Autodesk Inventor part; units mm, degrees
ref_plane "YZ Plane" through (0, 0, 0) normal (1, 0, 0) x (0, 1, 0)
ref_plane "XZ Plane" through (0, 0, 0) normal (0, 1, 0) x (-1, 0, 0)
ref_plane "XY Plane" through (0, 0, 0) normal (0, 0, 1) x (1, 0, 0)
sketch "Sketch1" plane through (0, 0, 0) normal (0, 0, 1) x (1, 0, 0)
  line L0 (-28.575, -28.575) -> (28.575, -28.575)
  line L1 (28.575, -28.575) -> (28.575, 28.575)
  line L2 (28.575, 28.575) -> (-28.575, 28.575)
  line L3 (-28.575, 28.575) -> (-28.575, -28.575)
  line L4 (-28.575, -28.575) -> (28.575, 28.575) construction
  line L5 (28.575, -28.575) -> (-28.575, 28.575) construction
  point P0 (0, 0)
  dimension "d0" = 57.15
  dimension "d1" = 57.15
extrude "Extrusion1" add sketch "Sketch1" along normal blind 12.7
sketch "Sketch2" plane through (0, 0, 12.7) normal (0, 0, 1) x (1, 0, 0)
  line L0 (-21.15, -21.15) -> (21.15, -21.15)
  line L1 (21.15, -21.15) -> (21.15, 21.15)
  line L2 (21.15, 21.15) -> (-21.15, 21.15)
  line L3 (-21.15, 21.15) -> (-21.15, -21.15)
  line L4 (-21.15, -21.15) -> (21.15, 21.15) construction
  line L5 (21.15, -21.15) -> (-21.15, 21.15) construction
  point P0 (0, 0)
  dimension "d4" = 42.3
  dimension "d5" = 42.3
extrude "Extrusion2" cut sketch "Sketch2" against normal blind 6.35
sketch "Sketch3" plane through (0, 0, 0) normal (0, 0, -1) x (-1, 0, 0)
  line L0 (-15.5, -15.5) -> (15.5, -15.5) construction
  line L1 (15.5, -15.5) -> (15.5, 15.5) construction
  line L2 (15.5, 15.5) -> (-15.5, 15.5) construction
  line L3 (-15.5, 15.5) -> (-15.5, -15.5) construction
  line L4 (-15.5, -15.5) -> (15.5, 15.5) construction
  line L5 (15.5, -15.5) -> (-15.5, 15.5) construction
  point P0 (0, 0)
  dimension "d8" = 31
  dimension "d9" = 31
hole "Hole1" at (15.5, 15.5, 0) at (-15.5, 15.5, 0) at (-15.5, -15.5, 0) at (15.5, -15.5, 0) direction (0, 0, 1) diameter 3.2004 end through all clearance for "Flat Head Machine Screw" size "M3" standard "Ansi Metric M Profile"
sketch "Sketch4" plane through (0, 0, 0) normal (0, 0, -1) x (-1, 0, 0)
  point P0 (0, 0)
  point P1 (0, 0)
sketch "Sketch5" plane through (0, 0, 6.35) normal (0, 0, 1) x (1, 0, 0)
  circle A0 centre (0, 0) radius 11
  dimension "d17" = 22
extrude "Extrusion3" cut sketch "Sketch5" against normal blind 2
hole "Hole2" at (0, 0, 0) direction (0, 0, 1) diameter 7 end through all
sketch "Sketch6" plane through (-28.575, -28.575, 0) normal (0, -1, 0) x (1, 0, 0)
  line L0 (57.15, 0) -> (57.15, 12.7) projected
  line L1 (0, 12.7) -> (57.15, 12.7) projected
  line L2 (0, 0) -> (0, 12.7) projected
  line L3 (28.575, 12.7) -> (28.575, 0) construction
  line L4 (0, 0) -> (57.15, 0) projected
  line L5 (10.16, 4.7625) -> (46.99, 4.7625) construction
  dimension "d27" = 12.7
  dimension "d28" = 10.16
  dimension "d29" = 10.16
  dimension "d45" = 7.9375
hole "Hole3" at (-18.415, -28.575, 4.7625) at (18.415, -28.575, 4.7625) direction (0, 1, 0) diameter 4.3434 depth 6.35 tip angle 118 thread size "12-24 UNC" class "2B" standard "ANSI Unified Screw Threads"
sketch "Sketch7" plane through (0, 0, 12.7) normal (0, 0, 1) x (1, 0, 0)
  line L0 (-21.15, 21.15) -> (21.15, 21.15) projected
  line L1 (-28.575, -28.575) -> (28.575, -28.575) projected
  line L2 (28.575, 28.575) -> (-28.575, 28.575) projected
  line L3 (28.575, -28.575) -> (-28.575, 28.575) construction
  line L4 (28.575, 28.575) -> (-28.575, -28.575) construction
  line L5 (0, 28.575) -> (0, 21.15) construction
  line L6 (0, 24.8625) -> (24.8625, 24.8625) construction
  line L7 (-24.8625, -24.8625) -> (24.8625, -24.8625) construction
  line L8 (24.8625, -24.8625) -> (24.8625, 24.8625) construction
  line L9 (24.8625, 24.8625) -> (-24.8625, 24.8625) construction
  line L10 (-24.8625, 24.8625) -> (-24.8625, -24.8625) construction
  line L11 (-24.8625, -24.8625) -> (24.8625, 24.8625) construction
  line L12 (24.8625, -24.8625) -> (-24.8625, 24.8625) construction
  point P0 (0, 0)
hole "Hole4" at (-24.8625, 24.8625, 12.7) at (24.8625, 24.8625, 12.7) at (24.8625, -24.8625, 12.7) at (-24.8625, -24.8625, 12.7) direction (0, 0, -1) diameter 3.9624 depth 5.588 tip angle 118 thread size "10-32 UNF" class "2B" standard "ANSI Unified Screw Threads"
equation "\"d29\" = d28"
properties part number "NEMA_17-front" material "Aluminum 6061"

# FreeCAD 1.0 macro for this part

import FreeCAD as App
import Part
import Sketcher

V = App.Vector
Q = App.Units.Quantity


def add_polygon(sketch, points):
    """Adds a closed chain of lines whose ends are joined by coincident constraints."""
    first, n = sketch.GeometryCount, len(points)
    for a, b in zip(points, points[1:] + points[:1]):
        sketch.addGeometry(Part.LineSegment(App.Vector(*a, 0), App.Vector(*b, 0)), False)
    for i in range(n):
        sketch.addConstraint(Sketcher.Constraint("Coincident", first + i, 2, first + (i + 1) % n, 1))

doc = App.newDocument("Part")
body = doc.addObject("PartDesign::Body", "Body")

sketch1 = doc.addObject("Sketcher::SketchObject", "Sketch")
body.addObject(sketch1)
sketch1.AttachmentSupport = (doc.XY_Plane, [""])
sketch1.MapMode = "FlatFace"
add_polygon(sketch1, [(-29, 29), (-29, -29), (29, -29), (29, 29)])
sketch1.addConstraint(Sketcher.Constraint("Vertical", 0))
sketch1.addConstraint(Sketcher.Constraint("Horizontal", 1))
sketch1.addConstraint(Sketcher.Constraint("Vertical", 2))
sketch1.addConstraint(Sketcher.Constraint("Horizontal", 3))
sketch1.addConstraint(Sketcher.Constraint("Symmetric", 0, 2, 2, 2, -1, 1))
sketch1.addConstraint(Sketcher.Constraint("Equal", 3, 0))
sketch1.addConstraint(Sketcher.Constraint("DistanceX", 1, 1, 1, 2, Q("2.25 in")))
pad1 = doc.addObject("PartDesign::Pad", "Pad")
body.addObject(pad1)
pad1.Profile = sketch1
pad1.Length = Q("0.5 in")

sketch2 = doc.addObject("Sketcher::SketchObject", "Sketch001")
body.addObject(sketch2)
sketch2.AttachmentSupport = (doc.XY_Plane, [""])
sketch2.MapMode = "FlatFace"
sketch2.AttachmentOffset = App.Placement(V(0, 0, 0.5 * 25.4), App.Rotation())
add_polygon(sketch2, [(-21, 21), (-21, -21), (21, -21), (21, 21)])
sketch2.addConstraint(Sketcher.Constraint("Vertical", 0))
sketch2.addConstraint(Sketcher.Constraint("Horizontal", 1))
sketch2.addConstraint(Sketcher.Constraint("Vertical", 2))
sketch2.addConstraint(Sketcher.Constraint("Horizontal", 3))
sketch2.addConstraint(Sketcher.Constraint("Symmetric", 0, 2, 2, 2, -1, 1))
sketch2.addConstraint(Sketcher.Constraint("Equal", 3, 0))
sketch2.addConstraint(Sketcher.Constraint("DistanceX", 1, 1, 1, 2, Q("42.3 mm")))
pocket1 = doc.addObject("PartDesign::Pocket", "Pocket")
body.addObject(pocket1)
pocket1.Profile = sketch2
pocket1.Length = Q("0.25 in")

sketch3 = doc.addObject("Sketcher::SketchObject", "Sketch002")
body.addObject(sketch3)
sketch3.AttachmentSupport = (doc.XY_Plane, [""])
sketch3.MapMode = "FlatFace"
sketch3.addGeometry(Part.Circle(V(15.5, 15.5, 0), V(0, 0, 1), 1.6), False)
sketch3.addGeometry(Part.Circle(V(-15.5, 15.5, 0), V(0, 0, 1), 1.6), False)
sketch3.addGeometry(Part.Circle(V(-15.5, -15.5, 0), V(0, 0, 1), 1.6), False)
sketch3.addGeometry(Part.Circle(V(15.5, -15.5, 0), V(0, 0, 1), 1.6), False)
sketch3.addConstraint(Sketcher.Constraint("Equal", 0, 1))
sketch3.addConstraint(Sketcher.Constraint("Equal", 1, 2))
sketch3.addConstraint(Sketcher.Constraint("Equal", 2, 3))
sketch3.addConstraint(Sketcher.Constraint("Symmetric", 0, 3, 2, 3, -1, 1))
sketch3.addConstraint(Sketcher.Constraint("Symmetric", 1, 3, 3, 3, -1, 1))
sketch3.addConstraint(Sketcher.Constraint("Symmetric", 0, 3, 1, 3, -2))
sketch3.addConstraint(Sketcher.Constraint("Diameter", 0, Q("0.126 in")))
sketch3.addConstraint(Sketcher.Constraint("DistanceX", -1, 1, 0, 3, Q("15.5 mm")))
sketch3.addConstraint(Sketcher.Constraint("DistanceY", -1, 1, 0, 3, Q("15.5 mm")))
doc.recompute()
hole = doc.addObject("PartDesign::Hole", "Hole")
body.addObject(hole)
hole.Profile = sketch3
hole.ThreadType = "None"
hole.Diameter = Q("0.126 in")
hole.DepthType = "ThroughAll"
hole.Reversed = True

sketch4 = doc.addObject("Sketcher::SketchObject", "Sketch003")
body.addObject(sketch4)
sketch4.AttachmentSupport = (doc.XY_Plane, [""])
sketch4.MapMode = "FlatFace"
sketch4.AttachmentOffset = App.Placement(V(0, 0, 0.25 * 25.4), App.Rotation())
sketch4.addGeometry(Part.Circle(V(0, 0, 0), V(0, 0, 1), 11), False)
sketch4.addConstraint(Sketcher.Constraint("Coincident", 0, 3, -1, 1))
sketch4.addConstraint(Sketcher.Constraint("Diameter", 0, Q("22 mm")))
pocket2 = doc.addObject("PartDesign::Pocket", "Pocket001")
body.addObject(pocket2)
pocket2.Profile = sketch4
pocket2.Length = 2

sketch5 = doc.addObject("Sketcher::SketchObject", "Sketch004")
body.addObject(sketch5)
sketch5.AttachmentSupport = (doc.XY_Plane, [""])
sketch5.MapMode = "FlatFace"
sketch5.addGeometry(Part.Circle(V(0, 0, 0), V(0, 0, 1), 3.5), False)
sketch5.addConstraint(Sketcher.Constraint("Coincident", 0, 3, -1, 1))
sketch5.addConstraint(Sketcher.Constraint("Diameter", 0, Q("0.2756 in")))
doc.recompute()
hole2 = doc.addObject("PartDesign::Hole", "Hole001")
body.addObject(hole2)
hole2.Profile = sketch5
hole2.ThreadType = "None"
hole2.Diameter = Q("0.2755906 in")
hole2.DepthType = "ThroughAll"
hole2.Reversed = True

sketch6 = doc.addObject("Sketcher::SketchObject", "Sketch005")
body.addObject(sketch6)
sketch6.AttachmentSupport = (doc.XZ_Plane, [""])
sketch6.MapMode = "FlatFace"
sketch6.AttachmentOffset = App.Placement(V(0, 0, 1.125 * 25.4), App.Rotation())
sketch6.addGeometry(Part.Circle(V(-18.4, 4.8, 0), V(0, 0, 1), 2.2), False)
sketch6.addGeometry(Part.Circle(V(18.4, 4.8, 0), V(0, 0, 1), 2.2), False)
sketch6.addConstraint(Sketcher.Constraint("Equal", 0, 1))
sketch6.addConstraint(Sketcher.Constraint("Symmetric", 0, 3, 1, 3, -2))
sketch6.addConstraint(Sketcher.Constraint("Diameter", 0, Q("0.171 in")))
sketch6.addConstraint(Sketcher.Constraint("DistanceX", 0, 3, 1, 3, Q("1.45 in")))
sketch6.addConstraint(Sketcher.Constraint("DistanceY", -1, 1, 0, 3, Q("0.1875 in")))
doc.recompute()
hole3 = doc.addObject("PartDesign::Hole", "Hole002")
body.addObject(hole3)
hole3.Profile = sketch6
hole3.ThreadType = "None"
hole3.Diameter = Q("0.171 in")
hole3.DepthType = "Dimension"
hole3.Depth = Q("0.25 in")
hole3.DrillPoint = "Angled"
hole3.DrillPointAngle = 118

sketch7 = doc.addObject("Sketcher::SketchObject", "Sketch006")
body.addObject(sketch7)
sketch7.AttachmentSupport = (doc.XY_Plane, [""])
sketch7.MapMode = "FlatFace"
sketch7.AttachmentOffset = App.Placement(V(0, 0, 0.5 * 25.4), App.Rotation())
sketch7.addGeometry(Part.Circle(V(-24.9, 24.9, 0), V(0, 0, 1), 2), False)
sketch7.addGeometry(Part.Circle(V(24.9, 24.9, 0), V(0, 0, 1), 2), False)
sketch7.addGeometry(Part.Circle(V(24.9, -24.9, 0), V(0, 0, 1), 2), False)
sketch7.addGeometry(Part.Circle(V(-24.9, -24.9, 0), V(0, 0, 1), 2), False)
sketch7.addConstraint(Sketcher.Constraint("Equal", 0, 1))
sketch7.addConstraint(Sketcher.Constraint("Equal", 1, 2))
sketch7.addConstraint(Sketcher.Constraint("Equal", 2, 3))
sketch7.addConstraint(Sketcher.Constraint("Symmetric", 0, 3, 2, 3, -1, 1))
sketch7.addConstraint(Sketcher.Constraint("Symmetric", 1, 3, 3, 3, -1, 1))
sketch7.addConstraint(Sketcher.Constraint("Symmetric", 0, 3, 1, 3, -2))
sketch7.addConstraint(Sketcher.Constraint("Diameter", 0, Q("0.156 in")))
sketch7.addConstraint(Sketcher.Constraint("DistanceX", 0, 3, -1, 1, Q("24.8625 mm")))
sketch7.addConstraint(Sketcher.Constraint("DistanceY", -1, 1, 0, 3, Q("24.8625 mm")))
doc.recompute()
hole4 = doc.addObject("PartDesign::Hole", "Hole003")
body.addObject(hole4)
hole4.Profile = sketch7
hole4.ThreadType = "None"
hole4.Diameter = Q("0.156 in")
hole4.DepthType = "Dimension"
hole4.Depth = Q("0.22 in")
hole4.DrillPoint = "Angled"
hole4.DrillPointAngle = 118

doc.recompute()
